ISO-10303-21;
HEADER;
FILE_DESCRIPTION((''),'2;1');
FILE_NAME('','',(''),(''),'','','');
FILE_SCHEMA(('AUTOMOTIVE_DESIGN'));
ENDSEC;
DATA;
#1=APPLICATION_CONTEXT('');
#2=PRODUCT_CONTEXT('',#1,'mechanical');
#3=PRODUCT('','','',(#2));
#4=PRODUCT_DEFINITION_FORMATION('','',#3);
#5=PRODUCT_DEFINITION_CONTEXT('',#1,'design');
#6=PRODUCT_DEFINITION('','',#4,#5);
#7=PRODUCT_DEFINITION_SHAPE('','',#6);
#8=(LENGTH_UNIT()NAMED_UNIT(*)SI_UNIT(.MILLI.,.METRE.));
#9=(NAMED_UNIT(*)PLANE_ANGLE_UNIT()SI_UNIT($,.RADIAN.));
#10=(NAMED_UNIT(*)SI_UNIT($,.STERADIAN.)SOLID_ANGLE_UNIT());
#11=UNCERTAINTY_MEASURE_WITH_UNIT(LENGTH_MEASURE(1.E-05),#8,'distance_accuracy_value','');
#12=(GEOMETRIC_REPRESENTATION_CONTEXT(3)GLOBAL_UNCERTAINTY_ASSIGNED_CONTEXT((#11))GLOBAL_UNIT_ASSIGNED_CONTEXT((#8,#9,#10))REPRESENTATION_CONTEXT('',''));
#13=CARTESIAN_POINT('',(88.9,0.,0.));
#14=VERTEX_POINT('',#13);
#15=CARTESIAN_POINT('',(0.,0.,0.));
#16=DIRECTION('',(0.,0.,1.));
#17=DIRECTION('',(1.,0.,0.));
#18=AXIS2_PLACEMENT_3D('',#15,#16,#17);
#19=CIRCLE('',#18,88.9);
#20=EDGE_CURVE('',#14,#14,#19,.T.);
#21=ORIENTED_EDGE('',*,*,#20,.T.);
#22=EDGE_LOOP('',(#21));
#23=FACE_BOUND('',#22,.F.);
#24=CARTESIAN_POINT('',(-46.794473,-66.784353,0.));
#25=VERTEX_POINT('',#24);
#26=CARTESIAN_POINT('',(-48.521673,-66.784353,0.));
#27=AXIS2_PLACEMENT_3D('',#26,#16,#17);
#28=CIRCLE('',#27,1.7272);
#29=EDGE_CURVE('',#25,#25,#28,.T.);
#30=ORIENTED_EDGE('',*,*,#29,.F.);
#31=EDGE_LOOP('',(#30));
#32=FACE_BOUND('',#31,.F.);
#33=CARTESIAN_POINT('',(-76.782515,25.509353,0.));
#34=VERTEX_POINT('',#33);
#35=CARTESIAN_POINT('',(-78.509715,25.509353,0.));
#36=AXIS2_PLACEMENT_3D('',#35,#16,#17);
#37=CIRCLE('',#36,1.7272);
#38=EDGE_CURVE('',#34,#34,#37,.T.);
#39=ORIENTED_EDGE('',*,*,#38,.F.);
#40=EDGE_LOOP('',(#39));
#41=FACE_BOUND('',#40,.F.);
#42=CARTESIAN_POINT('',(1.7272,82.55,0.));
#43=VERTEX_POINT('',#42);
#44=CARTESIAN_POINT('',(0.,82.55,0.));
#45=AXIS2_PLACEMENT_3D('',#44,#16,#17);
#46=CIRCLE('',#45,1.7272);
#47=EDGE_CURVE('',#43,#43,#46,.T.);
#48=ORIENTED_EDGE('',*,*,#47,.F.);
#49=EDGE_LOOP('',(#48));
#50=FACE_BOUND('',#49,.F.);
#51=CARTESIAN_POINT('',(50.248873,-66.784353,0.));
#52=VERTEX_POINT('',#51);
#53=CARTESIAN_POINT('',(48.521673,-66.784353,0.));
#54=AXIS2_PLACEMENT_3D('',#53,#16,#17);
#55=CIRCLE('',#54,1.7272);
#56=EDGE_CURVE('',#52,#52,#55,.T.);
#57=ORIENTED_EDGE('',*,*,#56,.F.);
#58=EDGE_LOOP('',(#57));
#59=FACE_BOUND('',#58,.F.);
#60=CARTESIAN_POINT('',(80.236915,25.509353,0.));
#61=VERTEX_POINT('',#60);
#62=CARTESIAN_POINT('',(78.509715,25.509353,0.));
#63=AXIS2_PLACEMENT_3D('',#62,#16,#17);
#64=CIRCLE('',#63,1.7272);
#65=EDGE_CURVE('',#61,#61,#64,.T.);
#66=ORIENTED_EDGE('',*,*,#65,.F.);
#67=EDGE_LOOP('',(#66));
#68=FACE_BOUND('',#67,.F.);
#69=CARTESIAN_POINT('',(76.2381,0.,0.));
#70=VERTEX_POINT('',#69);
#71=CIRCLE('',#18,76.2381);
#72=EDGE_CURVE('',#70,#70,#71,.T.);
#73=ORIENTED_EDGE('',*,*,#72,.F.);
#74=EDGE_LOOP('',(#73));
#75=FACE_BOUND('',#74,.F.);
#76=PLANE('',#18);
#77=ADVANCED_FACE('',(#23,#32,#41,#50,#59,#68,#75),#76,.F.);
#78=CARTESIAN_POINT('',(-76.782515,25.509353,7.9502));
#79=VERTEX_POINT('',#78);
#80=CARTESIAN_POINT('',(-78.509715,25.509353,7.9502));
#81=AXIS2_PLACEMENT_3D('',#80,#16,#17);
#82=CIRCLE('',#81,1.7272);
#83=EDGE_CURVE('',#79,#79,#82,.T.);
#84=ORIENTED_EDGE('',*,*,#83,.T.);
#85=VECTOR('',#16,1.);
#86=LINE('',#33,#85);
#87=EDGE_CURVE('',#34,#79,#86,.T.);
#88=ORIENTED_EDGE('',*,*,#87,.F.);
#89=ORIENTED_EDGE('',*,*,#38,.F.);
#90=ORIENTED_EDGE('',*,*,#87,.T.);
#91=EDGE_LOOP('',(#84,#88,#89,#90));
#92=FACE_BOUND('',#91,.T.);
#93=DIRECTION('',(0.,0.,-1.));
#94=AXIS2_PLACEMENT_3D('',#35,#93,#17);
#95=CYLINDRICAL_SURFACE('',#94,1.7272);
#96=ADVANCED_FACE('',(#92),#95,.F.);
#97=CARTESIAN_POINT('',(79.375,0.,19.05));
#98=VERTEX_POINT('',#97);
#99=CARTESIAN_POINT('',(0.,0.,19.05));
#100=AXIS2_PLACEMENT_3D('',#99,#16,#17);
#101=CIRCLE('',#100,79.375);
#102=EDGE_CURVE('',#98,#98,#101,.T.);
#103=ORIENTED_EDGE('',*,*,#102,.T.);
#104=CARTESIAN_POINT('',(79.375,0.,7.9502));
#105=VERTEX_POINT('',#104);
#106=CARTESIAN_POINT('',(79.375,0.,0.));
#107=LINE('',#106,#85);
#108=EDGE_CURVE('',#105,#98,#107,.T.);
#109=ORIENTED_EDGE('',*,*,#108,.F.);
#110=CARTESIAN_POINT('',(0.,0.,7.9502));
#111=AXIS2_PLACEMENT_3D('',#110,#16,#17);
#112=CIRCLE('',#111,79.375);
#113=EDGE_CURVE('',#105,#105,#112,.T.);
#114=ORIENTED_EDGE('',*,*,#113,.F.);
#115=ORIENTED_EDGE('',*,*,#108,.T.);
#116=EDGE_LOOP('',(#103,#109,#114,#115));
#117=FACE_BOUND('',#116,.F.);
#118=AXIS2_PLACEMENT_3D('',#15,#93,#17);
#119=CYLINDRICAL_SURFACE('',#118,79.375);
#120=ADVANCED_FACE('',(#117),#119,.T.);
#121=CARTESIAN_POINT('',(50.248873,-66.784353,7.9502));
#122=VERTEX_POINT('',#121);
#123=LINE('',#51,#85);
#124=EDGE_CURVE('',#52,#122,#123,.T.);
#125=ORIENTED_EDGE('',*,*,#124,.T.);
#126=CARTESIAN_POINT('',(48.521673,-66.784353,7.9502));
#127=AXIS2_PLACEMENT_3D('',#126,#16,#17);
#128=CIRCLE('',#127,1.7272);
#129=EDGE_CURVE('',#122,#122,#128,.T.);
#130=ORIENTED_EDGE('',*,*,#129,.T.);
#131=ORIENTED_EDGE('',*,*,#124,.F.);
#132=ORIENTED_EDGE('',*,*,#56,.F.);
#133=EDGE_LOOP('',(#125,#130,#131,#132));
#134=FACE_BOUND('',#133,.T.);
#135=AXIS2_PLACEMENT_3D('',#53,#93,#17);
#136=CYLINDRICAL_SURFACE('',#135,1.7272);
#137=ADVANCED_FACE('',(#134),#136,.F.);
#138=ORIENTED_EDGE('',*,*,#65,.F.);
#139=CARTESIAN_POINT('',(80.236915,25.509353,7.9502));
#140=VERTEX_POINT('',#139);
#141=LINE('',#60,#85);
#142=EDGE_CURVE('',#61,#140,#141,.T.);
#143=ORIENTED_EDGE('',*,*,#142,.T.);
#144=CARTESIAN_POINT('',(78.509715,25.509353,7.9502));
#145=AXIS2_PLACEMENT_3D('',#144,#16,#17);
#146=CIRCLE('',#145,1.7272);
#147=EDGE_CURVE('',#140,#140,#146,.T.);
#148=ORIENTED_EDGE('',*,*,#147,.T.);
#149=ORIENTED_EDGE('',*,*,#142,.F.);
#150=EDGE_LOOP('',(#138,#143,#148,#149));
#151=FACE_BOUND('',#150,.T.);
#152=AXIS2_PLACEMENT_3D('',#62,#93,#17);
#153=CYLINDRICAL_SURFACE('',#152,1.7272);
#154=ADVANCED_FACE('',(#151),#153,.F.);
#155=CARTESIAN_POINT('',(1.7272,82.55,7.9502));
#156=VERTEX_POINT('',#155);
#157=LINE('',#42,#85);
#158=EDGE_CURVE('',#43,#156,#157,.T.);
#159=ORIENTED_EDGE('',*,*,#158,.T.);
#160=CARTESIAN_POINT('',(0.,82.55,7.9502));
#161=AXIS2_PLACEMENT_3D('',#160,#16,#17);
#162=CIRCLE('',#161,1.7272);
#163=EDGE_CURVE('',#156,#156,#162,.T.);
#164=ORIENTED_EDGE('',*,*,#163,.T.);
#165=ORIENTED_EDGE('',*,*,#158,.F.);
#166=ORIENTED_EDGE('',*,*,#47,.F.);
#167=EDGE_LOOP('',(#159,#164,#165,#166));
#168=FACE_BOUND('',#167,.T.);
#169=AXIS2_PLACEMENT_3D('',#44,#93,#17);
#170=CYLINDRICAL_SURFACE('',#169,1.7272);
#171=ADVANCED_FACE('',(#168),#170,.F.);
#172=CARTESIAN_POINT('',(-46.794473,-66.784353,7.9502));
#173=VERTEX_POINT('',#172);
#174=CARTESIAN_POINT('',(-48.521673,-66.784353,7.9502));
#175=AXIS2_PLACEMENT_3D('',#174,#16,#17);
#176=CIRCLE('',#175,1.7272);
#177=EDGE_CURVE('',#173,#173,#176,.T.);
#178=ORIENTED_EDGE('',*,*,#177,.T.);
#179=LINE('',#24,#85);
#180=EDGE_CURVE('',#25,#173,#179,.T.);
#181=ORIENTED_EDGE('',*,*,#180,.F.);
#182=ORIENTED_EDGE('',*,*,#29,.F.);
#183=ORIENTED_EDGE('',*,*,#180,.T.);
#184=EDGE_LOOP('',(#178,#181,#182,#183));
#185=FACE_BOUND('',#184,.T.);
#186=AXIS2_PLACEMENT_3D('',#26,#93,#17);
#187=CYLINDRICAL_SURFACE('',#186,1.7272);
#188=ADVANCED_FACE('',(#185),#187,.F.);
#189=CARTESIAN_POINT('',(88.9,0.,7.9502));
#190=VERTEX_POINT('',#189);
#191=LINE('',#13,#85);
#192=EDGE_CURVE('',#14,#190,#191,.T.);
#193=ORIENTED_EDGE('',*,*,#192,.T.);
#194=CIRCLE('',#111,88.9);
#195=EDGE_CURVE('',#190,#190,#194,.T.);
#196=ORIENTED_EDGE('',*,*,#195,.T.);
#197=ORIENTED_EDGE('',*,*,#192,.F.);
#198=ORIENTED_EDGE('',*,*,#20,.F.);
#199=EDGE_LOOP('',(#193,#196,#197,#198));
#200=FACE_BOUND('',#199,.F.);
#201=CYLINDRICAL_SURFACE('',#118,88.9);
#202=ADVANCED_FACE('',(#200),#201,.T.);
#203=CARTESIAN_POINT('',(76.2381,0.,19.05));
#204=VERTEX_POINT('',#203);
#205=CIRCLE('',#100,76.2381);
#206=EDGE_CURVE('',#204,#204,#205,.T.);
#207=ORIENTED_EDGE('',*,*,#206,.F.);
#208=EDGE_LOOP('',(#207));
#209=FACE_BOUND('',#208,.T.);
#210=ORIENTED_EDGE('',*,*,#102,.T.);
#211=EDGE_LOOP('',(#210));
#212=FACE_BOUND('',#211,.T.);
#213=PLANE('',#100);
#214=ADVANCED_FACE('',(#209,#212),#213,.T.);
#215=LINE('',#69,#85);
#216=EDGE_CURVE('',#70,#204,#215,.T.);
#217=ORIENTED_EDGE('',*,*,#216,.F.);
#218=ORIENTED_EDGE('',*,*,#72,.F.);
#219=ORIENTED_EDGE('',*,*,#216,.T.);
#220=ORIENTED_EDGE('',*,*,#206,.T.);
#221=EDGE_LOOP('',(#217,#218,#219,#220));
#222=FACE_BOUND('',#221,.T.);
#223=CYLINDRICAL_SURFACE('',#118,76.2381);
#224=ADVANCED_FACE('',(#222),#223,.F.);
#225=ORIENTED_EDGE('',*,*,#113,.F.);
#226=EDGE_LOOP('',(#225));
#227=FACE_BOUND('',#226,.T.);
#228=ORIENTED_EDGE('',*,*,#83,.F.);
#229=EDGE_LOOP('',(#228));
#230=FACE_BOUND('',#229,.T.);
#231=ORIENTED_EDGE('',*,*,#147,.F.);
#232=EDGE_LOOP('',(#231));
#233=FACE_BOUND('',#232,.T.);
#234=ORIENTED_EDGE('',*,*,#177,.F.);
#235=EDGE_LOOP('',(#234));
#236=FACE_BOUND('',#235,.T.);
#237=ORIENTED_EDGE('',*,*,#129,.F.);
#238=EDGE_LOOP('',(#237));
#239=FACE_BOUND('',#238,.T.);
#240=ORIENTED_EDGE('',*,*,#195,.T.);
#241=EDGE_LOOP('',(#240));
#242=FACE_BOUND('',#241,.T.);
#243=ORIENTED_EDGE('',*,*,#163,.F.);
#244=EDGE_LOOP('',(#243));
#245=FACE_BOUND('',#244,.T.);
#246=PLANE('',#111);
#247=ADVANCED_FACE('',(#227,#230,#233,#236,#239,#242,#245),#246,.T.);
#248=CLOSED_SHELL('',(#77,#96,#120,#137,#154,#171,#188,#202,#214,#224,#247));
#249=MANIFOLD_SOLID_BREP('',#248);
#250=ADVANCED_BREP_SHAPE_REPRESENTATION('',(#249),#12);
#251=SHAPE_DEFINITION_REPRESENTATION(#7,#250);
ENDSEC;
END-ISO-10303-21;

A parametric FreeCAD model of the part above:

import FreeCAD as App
import Part
import Sketcher

V = App.Vector
Q = App.Units.Quantity

doc = App.newDocument("Part")
body = doc.addObject("PartDesign::Body", "Body")

# Sketch on XY plane
sketch1 = doc.addObject("Sketcher::SketchObject", "Sketch")
body.addObject(sketch1)
sketch1.AttachmentSupport = (doc.XY_Plane, [""])
sketch1.MapMode = "FlatFace"
sketch1.addGeometry([
    Part.Circle(V(0, 0, 0), V(0, 0, 1), 88.9),  # 0
    Part.Circle(V(-48.5, -66.8, 0), V(0, 0, 1), 1.7),  # 1
    Part.Circle(V(48.5, -66.8, 0), V(0, 0, 1), 1.7),  # 2
    Part.Circle(V(0, 0, 0), V(0, 0, 1), 79.4),  # 3
    Part.Circle(V(-78.5, 25.5, 0), V(0, 0, 1), 1.7),  # 4
    Part.Circle(V(78.5, 25.5, 0), V(0, 0, 1), 1.7),  # 5
    Part.Circle(V(0, 82.5, 0), V(0, 0, 1), 1.7),  # 6
], False)
sketch1.addConstraint([
    Sketcher.Constraint("Coincident", 0, 3, -1, 1),
    Sketcher.Constraint("Coincident", 3, 3, -1, 1),
    Sketcher.Constraint("Equal", 1, 2),
    Sketcher.Constraint("Equal", 2, 4),
    Sketcher.Constraint("Equal", 4, 5),
    Sketcher.Constraint("Equal", 5, 6),
    Sketcher.Constraint("Symmetric", 1, 3, 2, 3, -2),
    Sketcher.Constraint("Symmetric", 4, 3, 5, 3, -2),
    Sketcher.Constraint("PointOnObject", 6, 3, -2),
    Sketcher.Constraint("Diameter", 0, Q("7 in")),
    Sketcher.Constraint("Diameter", 3, Q("6.25 in")),
    Sketcher.Constraint("Diameter", 1, Q("0.136 in")),
    Sketcher.Constraint("DistanceY", -1, 1, 6, 3, Q("3.25 in")),
    Sketcher.Constraint("DistanceX", 4, 3, 1, 3, 29.988042),
    Sketcher.Constraint("DistanceX", 4, 3, 5, 3, 157.01943),
    Sketcher.Constraint("DistanceY", 1, 3, -1, 1, 66.784353),
    Sketcher.Constraint("DistanceY", -1, 1, 4, 3, 25.509353),
])
pad1 = doc.addObject("PartDesign::Pad", "Pad")
body.addObject(pad1)
pad1.Profile = sketch1
pad1.Length = Q("0.313 in")

# Sketch on XY plane
sketch2 = doc.addObject("Sketcher::SketchObject", "Sketch001")
body.addObject(sketch2)
sketch2.AttachmentSupport = (doc.XY_Plane, [""])
sketch2.MapMode = "FlatFace"
sketch2.addGeometry([
    Part.Circle(V(0, 0, 0), V(0, 0, 1), 79),
    Part.Circle(V(0, 0, 0), V(0, 0, 1), 76),
], False)
sketch2.addConstraint([
    Sketcher.Constraint("Coincident", 0, 3, -1, 1),
    Sketcher.Constraint("Coincident", 1, 3, -1, 1),
    Sketcher.Constraint("Diameter", 0, Q("6.25 in")),
    Sketcher.Constraint("Diameter", 1, Q("6.003 in")),
])
pad2 = doc.addObject("PartDesign::Pad", "Pad001")
body.addObject(pad2)
pad2.Profile = sketch2
pad2.Length = Q("0.75 in")

doc.recompute()
